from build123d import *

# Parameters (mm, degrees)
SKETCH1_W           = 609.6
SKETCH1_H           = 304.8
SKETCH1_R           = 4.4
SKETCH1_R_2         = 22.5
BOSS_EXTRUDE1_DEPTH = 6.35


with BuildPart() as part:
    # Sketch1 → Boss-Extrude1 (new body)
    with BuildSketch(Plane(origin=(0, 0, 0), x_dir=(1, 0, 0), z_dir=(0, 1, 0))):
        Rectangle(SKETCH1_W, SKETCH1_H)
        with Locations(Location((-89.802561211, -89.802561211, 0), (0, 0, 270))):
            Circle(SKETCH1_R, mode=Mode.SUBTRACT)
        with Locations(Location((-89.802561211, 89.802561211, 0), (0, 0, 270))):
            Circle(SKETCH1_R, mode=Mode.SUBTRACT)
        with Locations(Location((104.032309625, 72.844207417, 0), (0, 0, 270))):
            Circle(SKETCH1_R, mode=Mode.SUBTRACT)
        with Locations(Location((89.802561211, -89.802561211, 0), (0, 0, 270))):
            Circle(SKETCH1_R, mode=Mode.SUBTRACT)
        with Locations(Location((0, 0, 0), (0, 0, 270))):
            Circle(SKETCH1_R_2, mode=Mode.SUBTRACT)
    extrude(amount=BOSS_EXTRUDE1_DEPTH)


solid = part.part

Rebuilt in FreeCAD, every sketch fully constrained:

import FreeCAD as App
import Part
import Sketcher
Q = App.Units.Quantity

doc = App.newDocument("Part")
params = doc.addObject("Spreadsheet::Sheet", "Params")
for row, (alias, value) in enumerate([
    ("sketch1_width", "24 in"),
    ("sketch1_height", "12 in"),
    ("pad1_length", "0.25 in"),
], start=1):
    params.set(f"A{row}", alias)
    params.set(f"B{row}", "=" + value)
    params.setAlias(f"B{row}", alias)

body = doc.addObject("PartDesign::Body", "Body")

# Sketch on XZ plane
sketch1 = body.newObject("Sketcher::SketchObject", "Sketch")
sketch1.AttachmentSupport = (doc.getObject("XZ_Plane"), [""])
sketch1.MapMode = "FlatFace"
sketch1.addGeometry([
    Part.LineSegment(App.Vector(-304.8, -152.4, 0), App.Vector(-304.8, 152.4, 0)),  # 0
    Part.LineSegment(App.Vector(-304.8, 152.4, 0), App.Vector(304.8, 152.4, 0)),  # 1
    Part.LineSegment(App.Vector(304.8, 152.4, 0), App.Vector(304.8, -152.4, 0)),  # 2
    Part.LineSegment(App.Vector(304.8, -152.4, 0), App.Vector(-304.8, -152.4, 0)),  # 3
    Part.Circle(App.Vector(-89.8, 89.8, 0), App.Vector(0, 0, 1), 4.4),  # 4
    Part.Circle(App.Vector(0, 0, 0), App.Vector(0, 0, 1), 22.5),  # 5
    Part.Circle(App.Vector(89.8, 89.8, 0), App.Vector(0, 0, 1), 4.4),  # 6
    Part.Circle(App.Vector(-89.8, -89.8, 0), App.Vector(0, 0, 1), 4.4),  # 7
    Part.Circle(App.Vector(104, -72.8, 0), App.Vector(0, 0, 1), 4.4),  # 8
], False)
sketch1.addConstraint([
    Sketcher.Constraint("Coincident", 0, 2, 1, 1),
    Sketcher.Constraint("Coincident", 1, 2, 2, 1),
    Sketcher.Constraint("Coincident", 2, 2, 3, 1),
    Sketcher.Constraint("Coincident", 3, 2, 0, 1),
    Sketcher.Constraint("Vertical", 0),
    Sketcher.Constraint("Horizontal", 1),
    Sketcher.Constraint("Vertical", 2),
    Sketcher.Constraint("Horizontal", 3),
    Sketcher.Constraint("Coincident", 5, 3, -1, 1),
    Sketcher.Constraint("Equal", 4, 6),
    Sketcher.Constraint("Equal", 6, 7),
    Sketcher.Constraint("Equal", 7, 8),
    Sketcher.Constraint("Symmetric", 6, 3, 7, 3, -1, 1),
    Sketcher.Constraint("Symmetric", 0, 2, 2, 2, -1, 1),
    Sketcher.Constraint("Symmetric", 4, 3, 6, 3, -2),
    Sketcher.Constraint("DistanceX", 1, 1, 1, 2, Q("24 in")),
    Sketcher.Constraint("DistanceY", 0, 1, 0, 2, Q("12 in")),
    Sketcher.Constraint("Diameter", 4, Q("8.8 mm")),
    Sketcher.Constraint("Diameter", 5, Q("45 mm")),
    Sketcher.Constraint("DistanceX", 4, 3, -1, 1, Q("89.802561 mm")),
    Sketcher.Constraint("DistanceY", -1, 1, 4, 3, Q("89.802561 mm")),
    Sketcher.Constraint("DistanceX", -1, 1, 8, 3, Q("104.03231 mm")),
    Sketcher.Constraint("DistanceY", 8, 3, 6, 3, Q("162.646769 mm")),
])
sketch1.setExpression("Constraints[15]", "Params.sketch1_width")
sketch1.setExpression("Constraints[16]", "Params.sketch1_height")
pad1 = body.newObject("PartDesign::Pad", "Pad")
pad1.Profile = sketch1
pad1.setExpression("Length", "Params.pad1_length")
pad1.Reversed = True

doc.recompute()
